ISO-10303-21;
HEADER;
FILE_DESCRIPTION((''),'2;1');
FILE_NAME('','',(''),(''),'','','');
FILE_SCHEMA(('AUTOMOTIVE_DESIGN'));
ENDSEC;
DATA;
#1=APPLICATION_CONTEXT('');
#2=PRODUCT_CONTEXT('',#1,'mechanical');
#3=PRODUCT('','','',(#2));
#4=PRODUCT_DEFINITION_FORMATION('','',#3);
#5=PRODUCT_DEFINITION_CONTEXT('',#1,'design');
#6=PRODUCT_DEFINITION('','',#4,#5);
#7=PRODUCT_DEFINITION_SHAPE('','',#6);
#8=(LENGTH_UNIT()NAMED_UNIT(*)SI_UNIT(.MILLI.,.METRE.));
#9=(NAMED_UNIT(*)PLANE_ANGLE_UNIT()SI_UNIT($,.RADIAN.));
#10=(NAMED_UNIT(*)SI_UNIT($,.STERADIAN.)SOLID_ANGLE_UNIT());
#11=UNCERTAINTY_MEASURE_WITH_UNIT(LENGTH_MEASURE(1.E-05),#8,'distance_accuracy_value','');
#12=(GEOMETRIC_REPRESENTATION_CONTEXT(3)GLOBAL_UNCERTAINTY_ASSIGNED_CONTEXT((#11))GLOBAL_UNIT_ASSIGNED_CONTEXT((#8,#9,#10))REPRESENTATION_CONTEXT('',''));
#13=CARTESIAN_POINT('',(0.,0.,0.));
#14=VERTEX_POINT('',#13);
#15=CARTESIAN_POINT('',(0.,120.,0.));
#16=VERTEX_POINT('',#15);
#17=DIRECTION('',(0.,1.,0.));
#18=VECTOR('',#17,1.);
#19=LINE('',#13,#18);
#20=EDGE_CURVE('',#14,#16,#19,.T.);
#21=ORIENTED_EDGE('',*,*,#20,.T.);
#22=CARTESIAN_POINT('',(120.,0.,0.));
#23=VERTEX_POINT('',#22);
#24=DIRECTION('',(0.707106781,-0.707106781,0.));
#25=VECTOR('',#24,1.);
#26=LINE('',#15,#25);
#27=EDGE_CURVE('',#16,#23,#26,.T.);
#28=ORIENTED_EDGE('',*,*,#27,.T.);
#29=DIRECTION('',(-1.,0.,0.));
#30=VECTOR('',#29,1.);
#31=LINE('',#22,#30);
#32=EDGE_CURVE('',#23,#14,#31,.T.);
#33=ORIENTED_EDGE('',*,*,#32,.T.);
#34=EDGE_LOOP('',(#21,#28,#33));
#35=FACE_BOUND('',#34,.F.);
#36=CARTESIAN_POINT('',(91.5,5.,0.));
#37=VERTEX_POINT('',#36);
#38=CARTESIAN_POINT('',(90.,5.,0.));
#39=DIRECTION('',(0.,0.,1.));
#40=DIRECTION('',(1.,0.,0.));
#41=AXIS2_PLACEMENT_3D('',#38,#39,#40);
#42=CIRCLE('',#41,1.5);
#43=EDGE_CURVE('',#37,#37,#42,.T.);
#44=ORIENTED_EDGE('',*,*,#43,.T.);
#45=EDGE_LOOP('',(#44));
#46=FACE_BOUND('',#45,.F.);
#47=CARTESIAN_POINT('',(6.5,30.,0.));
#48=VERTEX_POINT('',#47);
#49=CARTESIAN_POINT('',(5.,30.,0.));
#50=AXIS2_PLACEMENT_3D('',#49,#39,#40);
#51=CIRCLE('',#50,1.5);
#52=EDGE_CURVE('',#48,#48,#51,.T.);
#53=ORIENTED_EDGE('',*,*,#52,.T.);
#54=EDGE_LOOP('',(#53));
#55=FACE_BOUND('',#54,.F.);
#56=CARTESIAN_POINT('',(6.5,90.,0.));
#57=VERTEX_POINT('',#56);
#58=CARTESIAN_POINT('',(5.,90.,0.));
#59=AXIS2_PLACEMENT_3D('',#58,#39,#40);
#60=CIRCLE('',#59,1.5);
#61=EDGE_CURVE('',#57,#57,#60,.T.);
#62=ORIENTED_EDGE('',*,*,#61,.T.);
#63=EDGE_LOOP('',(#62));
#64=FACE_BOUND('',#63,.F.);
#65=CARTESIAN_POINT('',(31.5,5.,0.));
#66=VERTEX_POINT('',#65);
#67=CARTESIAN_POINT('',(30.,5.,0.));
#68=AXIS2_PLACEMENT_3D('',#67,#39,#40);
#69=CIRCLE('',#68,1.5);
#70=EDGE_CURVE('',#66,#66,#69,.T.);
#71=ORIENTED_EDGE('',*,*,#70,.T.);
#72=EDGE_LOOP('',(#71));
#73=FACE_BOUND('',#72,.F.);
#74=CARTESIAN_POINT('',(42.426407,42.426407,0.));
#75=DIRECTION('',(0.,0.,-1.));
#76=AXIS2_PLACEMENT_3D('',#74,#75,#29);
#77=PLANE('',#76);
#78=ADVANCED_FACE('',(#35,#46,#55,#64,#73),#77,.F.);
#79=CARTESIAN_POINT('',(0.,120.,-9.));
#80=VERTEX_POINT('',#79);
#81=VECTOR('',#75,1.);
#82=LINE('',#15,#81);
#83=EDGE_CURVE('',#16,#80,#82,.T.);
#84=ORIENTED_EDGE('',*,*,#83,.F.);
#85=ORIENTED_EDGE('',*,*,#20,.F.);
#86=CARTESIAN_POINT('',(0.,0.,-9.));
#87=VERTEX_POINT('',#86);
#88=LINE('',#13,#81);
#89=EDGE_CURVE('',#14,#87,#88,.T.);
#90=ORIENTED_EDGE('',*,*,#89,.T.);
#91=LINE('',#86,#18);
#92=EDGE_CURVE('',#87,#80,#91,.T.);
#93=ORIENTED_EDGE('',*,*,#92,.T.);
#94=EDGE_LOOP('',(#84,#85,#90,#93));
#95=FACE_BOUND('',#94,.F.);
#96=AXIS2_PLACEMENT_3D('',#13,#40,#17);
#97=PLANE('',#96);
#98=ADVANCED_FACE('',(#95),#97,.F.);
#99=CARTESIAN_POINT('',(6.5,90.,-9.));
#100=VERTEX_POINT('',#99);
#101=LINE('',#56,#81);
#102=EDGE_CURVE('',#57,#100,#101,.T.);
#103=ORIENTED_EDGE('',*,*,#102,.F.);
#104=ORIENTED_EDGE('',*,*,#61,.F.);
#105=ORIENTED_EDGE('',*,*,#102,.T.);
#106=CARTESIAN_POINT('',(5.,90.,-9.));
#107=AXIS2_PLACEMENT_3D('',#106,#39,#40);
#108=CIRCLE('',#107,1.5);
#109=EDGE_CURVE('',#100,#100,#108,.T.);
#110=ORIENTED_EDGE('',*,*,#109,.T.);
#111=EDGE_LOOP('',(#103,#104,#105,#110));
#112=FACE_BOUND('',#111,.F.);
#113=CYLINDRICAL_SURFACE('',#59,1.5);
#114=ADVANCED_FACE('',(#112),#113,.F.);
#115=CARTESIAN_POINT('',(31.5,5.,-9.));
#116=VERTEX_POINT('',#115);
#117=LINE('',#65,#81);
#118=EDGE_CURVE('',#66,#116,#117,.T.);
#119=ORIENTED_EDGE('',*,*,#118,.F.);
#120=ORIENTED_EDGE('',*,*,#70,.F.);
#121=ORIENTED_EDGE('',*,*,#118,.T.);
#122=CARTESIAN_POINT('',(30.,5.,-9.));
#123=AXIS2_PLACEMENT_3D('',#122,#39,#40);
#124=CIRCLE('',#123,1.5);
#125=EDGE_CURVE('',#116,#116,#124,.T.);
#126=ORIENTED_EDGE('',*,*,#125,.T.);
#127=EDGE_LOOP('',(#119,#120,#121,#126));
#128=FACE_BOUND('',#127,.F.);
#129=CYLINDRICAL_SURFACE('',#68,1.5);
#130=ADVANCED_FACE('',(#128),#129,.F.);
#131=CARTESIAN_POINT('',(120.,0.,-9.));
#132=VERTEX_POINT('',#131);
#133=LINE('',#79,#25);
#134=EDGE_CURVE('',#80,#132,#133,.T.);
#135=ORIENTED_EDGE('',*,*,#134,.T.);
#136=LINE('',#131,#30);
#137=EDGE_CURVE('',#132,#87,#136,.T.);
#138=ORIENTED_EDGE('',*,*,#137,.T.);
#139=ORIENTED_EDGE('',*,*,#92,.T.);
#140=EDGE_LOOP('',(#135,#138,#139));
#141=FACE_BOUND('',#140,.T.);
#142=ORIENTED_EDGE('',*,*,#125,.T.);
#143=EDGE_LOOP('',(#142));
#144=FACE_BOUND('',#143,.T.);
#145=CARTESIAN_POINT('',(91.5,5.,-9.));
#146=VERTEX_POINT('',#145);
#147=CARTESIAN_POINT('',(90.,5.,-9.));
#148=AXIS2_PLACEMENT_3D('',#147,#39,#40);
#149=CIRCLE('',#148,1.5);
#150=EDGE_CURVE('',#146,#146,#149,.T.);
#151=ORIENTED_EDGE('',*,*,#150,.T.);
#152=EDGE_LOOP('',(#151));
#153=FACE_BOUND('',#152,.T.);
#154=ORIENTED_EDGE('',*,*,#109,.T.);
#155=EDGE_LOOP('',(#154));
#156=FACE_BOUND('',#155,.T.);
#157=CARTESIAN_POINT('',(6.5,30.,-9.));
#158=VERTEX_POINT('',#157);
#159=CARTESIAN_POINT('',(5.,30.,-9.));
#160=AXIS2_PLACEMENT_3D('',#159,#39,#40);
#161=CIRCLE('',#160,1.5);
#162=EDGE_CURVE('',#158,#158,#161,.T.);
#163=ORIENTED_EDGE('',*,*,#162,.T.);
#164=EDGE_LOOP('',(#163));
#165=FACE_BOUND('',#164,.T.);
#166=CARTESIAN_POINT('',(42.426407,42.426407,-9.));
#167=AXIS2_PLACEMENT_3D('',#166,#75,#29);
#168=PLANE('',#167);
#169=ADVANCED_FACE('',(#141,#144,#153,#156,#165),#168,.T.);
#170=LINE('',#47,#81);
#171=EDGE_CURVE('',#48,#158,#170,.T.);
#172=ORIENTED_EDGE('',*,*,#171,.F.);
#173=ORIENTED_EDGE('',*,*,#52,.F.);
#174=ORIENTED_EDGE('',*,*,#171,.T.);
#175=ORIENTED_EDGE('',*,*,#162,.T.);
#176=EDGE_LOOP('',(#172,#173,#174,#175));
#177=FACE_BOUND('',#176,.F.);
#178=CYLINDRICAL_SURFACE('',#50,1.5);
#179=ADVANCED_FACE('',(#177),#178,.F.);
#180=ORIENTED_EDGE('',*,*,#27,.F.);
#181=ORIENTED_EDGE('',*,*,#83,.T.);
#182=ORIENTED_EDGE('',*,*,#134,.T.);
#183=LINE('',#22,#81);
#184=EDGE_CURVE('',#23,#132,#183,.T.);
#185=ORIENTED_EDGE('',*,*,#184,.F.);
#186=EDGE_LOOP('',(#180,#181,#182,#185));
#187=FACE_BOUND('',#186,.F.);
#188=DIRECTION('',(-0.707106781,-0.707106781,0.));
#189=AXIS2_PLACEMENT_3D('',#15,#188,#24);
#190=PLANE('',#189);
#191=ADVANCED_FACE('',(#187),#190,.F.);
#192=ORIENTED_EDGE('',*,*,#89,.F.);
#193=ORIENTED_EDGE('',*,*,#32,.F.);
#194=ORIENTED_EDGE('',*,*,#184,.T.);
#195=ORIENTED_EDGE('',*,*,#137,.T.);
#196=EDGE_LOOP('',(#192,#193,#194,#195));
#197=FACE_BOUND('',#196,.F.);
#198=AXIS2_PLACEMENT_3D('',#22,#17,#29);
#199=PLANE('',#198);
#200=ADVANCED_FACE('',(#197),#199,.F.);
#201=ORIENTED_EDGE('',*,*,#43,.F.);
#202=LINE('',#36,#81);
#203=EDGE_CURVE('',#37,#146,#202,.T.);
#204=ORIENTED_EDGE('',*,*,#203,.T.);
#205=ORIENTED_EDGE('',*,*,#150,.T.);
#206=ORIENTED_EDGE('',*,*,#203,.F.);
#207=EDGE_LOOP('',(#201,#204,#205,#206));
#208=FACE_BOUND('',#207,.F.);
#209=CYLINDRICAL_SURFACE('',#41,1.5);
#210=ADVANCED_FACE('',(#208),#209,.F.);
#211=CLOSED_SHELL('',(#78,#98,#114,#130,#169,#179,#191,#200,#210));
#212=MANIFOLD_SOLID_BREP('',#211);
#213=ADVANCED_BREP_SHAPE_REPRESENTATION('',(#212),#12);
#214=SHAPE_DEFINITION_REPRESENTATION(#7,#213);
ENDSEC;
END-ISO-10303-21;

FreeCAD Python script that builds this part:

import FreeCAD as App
import Part
import Sketcher

V = App.Vector
Q = App.Units.Quantity

doc = App.newDocument("Part")
body = doc.addObject("PartDesign::Body", "Body")

# Sketch on XY plane
sketch1 = doc.addObject("Sketcher::SketchObject", "Sketch")
body.addObject(sketch1)
sketch1.AttachmentSupport = (doc.XY_Plane, [""])
sketch1.MapMode = "FlatFace"
sketch1.addGeometry([
    Part.LineSegment(V(0, 120, 0), V(0, 0, 0)),
    Part.LineSegment(V(0, 0, 0), V(120, 0, 0)),
    Part.LineSegment(V(120, 0, 0), V(0, 120, 0)),
], False)
sketch1.addConstraint([
    Sketcher.Constraint("Coincident", 0, 2, 1, 1),
    Sketcher.Constraint("Coincident", 1, 2, 2, 1),
    Sketcher.Constraint("Coincident", 2, 2, 0, 1),
    Sketcher.Constraint("Vertical", 0),
    Sketcher.Constraint("Horizontal", 1),
    Sketcher.Constraint("Coincident", 0, 2, -1, 1),
    Sketcher.Constraint("Equal", 1, 0),
    Sketcher.Constraint("DistanceX", 1, 1, 1, 2, Q("120 mm")),
])
pad1 = doc.addObject("PartDesign::Pad", "Pad")
body.addObject(pad1)
pad1.Profile = sketch1
pad1.Length = 9
pad1.Reversed = True

# Sketch on XY plane
sketch2 = doc.addObject("Sketcher::SketchObject", "Sketch001")
body.addObject(sketch2)
sketch2.AttachmentSupport = (doc.XY_Plane, [""])
sketch2.MapMode = "FlatFace"
sketch2.addGeometry([
    Part.Circle(V(5, 30, 0), V(0, 0, 1), 1.5),
    Part.Circle(V(5, 90, 0), V(0, 0, 1), 1.5),
    Part.Circle(V(30, 5, 0), V(0, 0, 1), 1.5),
    Part.Circle(V(90, 5, 0), V(0, 0, 1), 1.5),
], False)
sketch2.addConstraint([
    Sketcher.Constraint("Equal", 0, 1),
    Sketcher.Constraint("Equal", 1, 2),
    Sketcher.Constraint("Equal", 2, 3),
    Sketcher.Constraint("Horizontal", 2, 3, 3, 3),
    Sketcher.Constraint("Vertical", 0, 3, 1, 3),
    Sketcher.Constraint("Diameter", 0, Q("3 mm")),
    Sketcher.Constraint("DistanceX", -1, 1, 0, 3, Q("5 mm")),
    Sketcher.Constraint("DistanceY", -1, 1, 0, 3, Q("30 mm")),
    Sketcher.Constraint("DistanceY", -1, 1, 1, 3, Q("90 mm")),
    Sketcher.Constraint("DistanceX", -1, 1, 2, 3, Q("30 mm")),
    Sketcher.Constraint("DistanceY", -1, 1, 2, 3, Q("5 mm")),
    Sketcher.Constraint("DistanceX", -1, 1, 3, 3, Q("90 mm")),
])
pocket1 = doc.addObject("PartDesign::Pocket", "Pocket")
body.addObject(pocket1)
pocket1.Profile = sketch2
pocket1.Type = "ThroughAll"

doc.recompute()
